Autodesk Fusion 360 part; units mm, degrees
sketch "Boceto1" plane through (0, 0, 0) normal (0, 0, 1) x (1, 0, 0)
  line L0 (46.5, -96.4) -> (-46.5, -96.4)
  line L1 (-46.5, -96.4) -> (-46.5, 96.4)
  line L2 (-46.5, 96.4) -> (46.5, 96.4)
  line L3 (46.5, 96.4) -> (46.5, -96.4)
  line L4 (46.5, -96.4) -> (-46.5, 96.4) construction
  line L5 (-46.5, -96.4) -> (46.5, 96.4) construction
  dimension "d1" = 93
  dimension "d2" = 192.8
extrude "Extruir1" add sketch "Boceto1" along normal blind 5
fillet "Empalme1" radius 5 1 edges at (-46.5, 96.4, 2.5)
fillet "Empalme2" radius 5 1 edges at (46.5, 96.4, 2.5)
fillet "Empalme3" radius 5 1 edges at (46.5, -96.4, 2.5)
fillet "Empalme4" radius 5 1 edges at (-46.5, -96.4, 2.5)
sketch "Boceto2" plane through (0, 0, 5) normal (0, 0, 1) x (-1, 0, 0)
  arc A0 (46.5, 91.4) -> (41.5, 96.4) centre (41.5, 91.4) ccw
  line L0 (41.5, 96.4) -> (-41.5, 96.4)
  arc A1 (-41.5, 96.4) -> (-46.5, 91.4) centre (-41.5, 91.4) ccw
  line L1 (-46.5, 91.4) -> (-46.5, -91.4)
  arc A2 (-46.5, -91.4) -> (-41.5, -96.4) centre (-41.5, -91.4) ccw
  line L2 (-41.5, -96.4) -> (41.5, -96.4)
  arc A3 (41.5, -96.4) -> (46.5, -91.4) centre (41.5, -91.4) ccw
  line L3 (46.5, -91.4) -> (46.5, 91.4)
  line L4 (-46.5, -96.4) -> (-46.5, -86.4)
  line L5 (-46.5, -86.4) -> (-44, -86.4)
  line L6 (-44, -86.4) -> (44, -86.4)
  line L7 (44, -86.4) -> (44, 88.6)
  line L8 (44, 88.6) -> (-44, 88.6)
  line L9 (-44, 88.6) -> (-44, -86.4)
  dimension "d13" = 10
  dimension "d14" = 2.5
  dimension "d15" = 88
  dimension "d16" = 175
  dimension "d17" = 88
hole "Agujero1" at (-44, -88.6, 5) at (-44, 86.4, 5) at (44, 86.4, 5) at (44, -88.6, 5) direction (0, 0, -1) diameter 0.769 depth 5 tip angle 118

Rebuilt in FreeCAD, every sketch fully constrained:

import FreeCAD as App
import Part
import Sketcher


def edges_at(feature, points):
    """Names of the edges that pass closest to the given points."""
    edges = feature.Shape.Edges
    near = lambda p: min(range(len(edges)), key=lambda i: edges[i].distToShape(Part.Vertex(*p))[0])
    return sorted({f"Edge{near(p) + 1}" for p in points})

doc = App.newDocument("Part")
params = doc.addObject("Spreadsheet::Sheet", "Params")
for row, (alias, value) in enumerate([
    ("sketch1_width", "93 mm"),
    ("sketch1_height", "192.8 mm"),
    ("pad1_length", "5 mm"),
    ("fillet_radius", "5 mm"),
    ("fillet2_radius", "5 mm"),
    ("fillet3_radius", "5 mm"),
    ("fillet4_radius", "5 mm"),
    ("hole_diameter", "0.769 mm"),
    ("hole_depth", "5 mm"),
], start=1):
    params.set(f"A{row}", alias)
    params.set(f"B{row}", "=" + value)
    params.setAlias(f"B{row}", alias)

body = doc.addObject("PartDesign::Body", "Body")

# Sketch on XY plane
sketch1 = body.newObject("Sketcher::SketchObject", "Sketch")
sketch1.AttachmentSupport = (doc.getObject("XY_Plane"), [""])
sketch1.MapMode = "FlatFace"
sketch1.addGeometry([
    Part.LineSegment(App.Vector(-46, -96, 0), App.Vector(46, -96, 0)),
    Part.LineSegment(App.Vector(46, -96, 0), App.Vector(46, 96, 0)),
    Part.LineSegment(App.Vector(46, 96, 0), App.Vector(-46, 96, 0)),
    Part.LineSegment(App.Vector(-46, 96, 0), App.Vector(-46, -96, 0)),
], False)
sketch1.addConstraint([
    Sketcher.Constraint("Coincident", 0, 2, 1, 1),
    Sketcher.Constraint("Coincident", 1, 2, 2, 1),
    Sketcher.Constraint("Coincident", 2, 2, 3, 1),
    Sketcher.Constraint("Coincident", 3, 2, 0, 1),
    Sketcher.Constraint("Horizontal", 0),
    Sketcher.Constraint("Vertical", 1),
    Sketcher.Constraint("Horizontal", 2),
    Sketcher.Constraint("Vertical", 3),
    Sketcher.Constraint("Symmetric", 0, 2, 2, 2, -1, 1),
    Sketcher.Constraint("DistanceX", 0, 1, 0, 2, 93.0),
    Sketcher.Constraint("DistanceY", 1, 1, 1, 2, 192.8),
])
sketch1.setExpression("Constraints[9]", "Params.sketch1_width")
sketch1.setExpression("Constraints[10]", "Params.sketch1_height")
pad1 = body.newObject("PartDesign::Pad", "Pad")
pad1.Profile = sketch1
pad1.setExpression("Length", "Params.pad1_length")
doc.recompute()

fillet = body.newObject("PartDesign::Fillet", "Fillet")
fillet.Base = (pad1, edges_at(pad1, [(-46.5, 96.4, 2.5)]))
fillet.setExpression("Radius", "Params.fillet_radius")
doc.recompute()

fillet2 = body.newObject("PartDesign::Fillet", "Fillet001")
fillet2.Base = (fillet, edges_at(fillet, [(46.5, 96.4, 2.5)]))
fillet2.setExpression("Radius", "Params.fillet2_radius")
doc.recompute()

fillet3 = body.newObject("PartDesign::Fillet", "Fillet002")
fillet3.Base = (fillet2, edges_at(fillet2, [(46.5, -96.4, 2.5)]))
fillet3.setExpression("Radius", "Params.fillet3_radius")
doc.recompute()

fillet4 = body.newObject("PartDesign::Fillet", "Fillet003")
fillet4.Base = (fillet3, edges_at(fillet3, [(-46.5, -96.4, 2.5)]))
fillet4.setExpression("Radius", "Params.fillet4_radius")

# Sketch on XY plane
sketch2 = body.newObject("Sketcher::SketchObject", "Sketch001")
sketch2.AttachmentSupport = (doc.getObject("XY_Plane"), [""])
sketch2.MapMode = "FlatFace"
sketch2.AttachmentOffset = App.Placement(App.Vector(0, 0, 5), App.Rotation())
sketch2.addGeometry([
    Part.Circle(App.Vector(-44, -88.6, 0), App.Vector(0, 0, 1), 0.38),
    Part.Circle(App.Vector(-44, 86.4, 0), App.Vector(0, 0, 1), 0.38),
    Part.Circle(App.Vector(44, 86.4, 0), App.Vector(0, 0, 1), 0.38),
    Part.Circle(App.Vector(44, -88.6, 0), App.Vector(0, 0, 1), 0.38),
], False)
sketch2.addConstraint([
    Sketcher.Constraint("Equal", 0, 1),
    Sketcher.Constraint("Equal", 1, 2),
    Sketcher.Constraint("Equal", 2, 3),
    Sketcher.Constraint("Symmetric", 1, 3, 2, 3, -2),
    Sketcher.Constraint("Symmetric", 0, 3, 3, 3, -2),
    Sketcher.Constraint("Vertical", 0, 3, 1, 3),
    Sketcher.Constraint("Diameter", 0, 0.769),
    Sketcher.Constraint("DistanceX", 0, 3, -1, 1, 44.0),
    Sketcher.Constraint("DistanceY", 0, 3, 1, 3, 175.0),
    Sketcher.Constraint("DistanceY", 0, 3, -1, 1, 88.6),
])
doc.recompute()
hole = body.newObject("PartDesign::Hole", "Hole")
hole.Profile = sketch2
hole.ThreadType = "None"
hole.setExpression("Diameter", "Params.hole_diameter")
hole.DepthType = "Dimension"
hole.setExpression("Depth", "Params.hole_depth")
hole.DrillPoint = "Angled"
hole.DrillPointAngle = 118

doc.recompute()
